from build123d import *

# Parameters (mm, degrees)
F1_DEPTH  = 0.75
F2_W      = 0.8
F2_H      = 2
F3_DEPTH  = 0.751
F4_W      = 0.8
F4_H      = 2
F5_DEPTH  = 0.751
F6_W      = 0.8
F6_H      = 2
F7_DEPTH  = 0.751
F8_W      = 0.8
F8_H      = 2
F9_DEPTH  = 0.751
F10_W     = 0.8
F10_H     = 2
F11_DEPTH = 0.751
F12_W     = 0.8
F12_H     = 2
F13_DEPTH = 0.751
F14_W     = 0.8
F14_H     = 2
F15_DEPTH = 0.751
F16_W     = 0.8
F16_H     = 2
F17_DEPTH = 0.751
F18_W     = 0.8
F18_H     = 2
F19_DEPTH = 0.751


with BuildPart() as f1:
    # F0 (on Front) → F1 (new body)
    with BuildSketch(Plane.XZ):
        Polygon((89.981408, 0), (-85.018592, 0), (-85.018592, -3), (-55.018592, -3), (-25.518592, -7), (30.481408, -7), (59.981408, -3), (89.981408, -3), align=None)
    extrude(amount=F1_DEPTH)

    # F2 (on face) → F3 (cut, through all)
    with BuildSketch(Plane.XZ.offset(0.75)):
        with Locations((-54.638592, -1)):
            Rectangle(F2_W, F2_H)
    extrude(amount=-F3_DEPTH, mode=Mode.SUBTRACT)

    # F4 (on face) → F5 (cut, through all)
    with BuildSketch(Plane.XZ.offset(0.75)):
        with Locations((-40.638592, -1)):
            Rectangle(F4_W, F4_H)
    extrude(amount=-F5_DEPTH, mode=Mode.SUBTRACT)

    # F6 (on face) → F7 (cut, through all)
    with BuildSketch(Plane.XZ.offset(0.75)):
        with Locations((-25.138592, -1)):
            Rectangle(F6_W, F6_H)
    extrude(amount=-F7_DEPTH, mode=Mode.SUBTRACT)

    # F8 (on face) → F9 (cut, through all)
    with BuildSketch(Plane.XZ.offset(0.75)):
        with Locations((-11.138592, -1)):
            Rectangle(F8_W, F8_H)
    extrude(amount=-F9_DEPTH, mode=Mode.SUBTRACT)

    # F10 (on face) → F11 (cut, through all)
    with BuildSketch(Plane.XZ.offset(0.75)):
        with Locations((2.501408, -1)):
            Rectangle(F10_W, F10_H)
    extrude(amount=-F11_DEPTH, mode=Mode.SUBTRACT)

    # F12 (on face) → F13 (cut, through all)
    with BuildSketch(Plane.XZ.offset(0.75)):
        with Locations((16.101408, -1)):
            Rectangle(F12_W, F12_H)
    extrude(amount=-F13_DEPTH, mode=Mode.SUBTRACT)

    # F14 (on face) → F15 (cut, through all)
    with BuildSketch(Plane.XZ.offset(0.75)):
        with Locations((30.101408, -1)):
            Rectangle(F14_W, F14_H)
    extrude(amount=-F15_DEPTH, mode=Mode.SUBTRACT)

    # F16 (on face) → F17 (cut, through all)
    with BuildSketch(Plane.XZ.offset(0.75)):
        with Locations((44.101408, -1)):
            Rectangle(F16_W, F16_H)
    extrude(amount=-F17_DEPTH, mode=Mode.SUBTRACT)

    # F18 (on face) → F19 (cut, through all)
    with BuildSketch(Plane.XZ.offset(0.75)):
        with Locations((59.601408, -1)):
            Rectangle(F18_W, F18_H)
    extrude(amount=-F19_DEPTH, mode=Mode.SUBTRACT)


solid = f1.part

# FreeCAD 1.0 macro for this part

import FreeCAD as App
import Part
import Sketcher

V = App.Vector
Q = App.Units.Quantity

doc = App.newDocument("Part")
params = doc.addObject("Spreadsheet::Sheet", "Params")
for row, (alias, value) in enumerate([
    ("sketch1_width", "175 mm"),
    ("sketch1_width2", "30 mm"),
    ("sketch1_width3", "56 mm"),
    ("sketch1_height", "3 mm"),
    ("pad1_length", "0.75 mm"),
    ("sketch2_height", "2 mm"),
    ("sketch2_width", "0.8 mm"),
    ("sketch3_height", "2 mm"),
    ("sketch3_width", "0.8 mm"),
    ("sketch4_height", "2 mm"),
    ("sketch4_width", "0.8 mm"),
    ("sketch5_height", "2 mm"),
    ("sketch5_width", "0.8 mm"),
    ("sketch6_height", "2 mm"),
    ("sketch6_width", "0.8 mm"),
    ("sketch7_height", "2 mm"),
    ("sketch7_width", "0.8 mm"),
    ("sketch8_height", "2 mm"),
    ("sketch8_width", "0.8 mm"),
    ("sketch9_height", "2 mm"),
    ("sketch9_width", "0.8 mm"),
    ("sketch10_height", "2 mm"),
    ("sketch10_width", "0.8 mm"),
], start=1):
    params.set(f"A{row}", alias)
    params.set(f"B{row}", "=" + value)
    params.setAlias(f"B{row}", alias)

body = doc.addObject("PartDesign::Body", "Body")

sketch1 = body.newObject("Sketcher::SketchObject", "Sketch")
sketch1.AttachmentSupport = (doc.getObject("XZ_Plane"), [""])
sketch1.MapMode = "FlatFace"
sketch1.addGeometry([
    Part.LineSegment(V(90, 0, 0), V(-85, 0, 0)),
    Part.LineSegment(V(-85, 0, 0), V(-85, -3, 0)),
    Part.LineSegment(V(-85, -3, 0), V(-55, -3, 0)),
    Part.LineSegment(V(-55, -3, 0), V(-25.5, -7, 0)),
    Part.LineSegment(V(-25.5, -7, 0), V(30.5, -7, 0)),
    Part.LineSegment(V(30.5, -7, 0), V(60, -3, 0)),
    Part.LineSegment(V(60, -3, 0), V(90, -3, 0)),
    Part.LineSegment(V(90, -3, 0), V(90, 0, 0)),
], False)
sketch1.addConstraint([
    Sketcher.Constraint("Coincident", 0, 2, 1, 1),
    Sketcher.Constraint("Coincident", 1, 2, 2, 1),
    Sketcher.Constraint("Coincident", 2, 2, 3, 1),
    Sketcher.Constraint("Coincident", 3, 2, 4, 1),
    Sketcher.Constraint("Coincident", 4, 2, 5, 1),
    Sketcher.Constraint("Coincident", 5, 2, 6, 1),
    Sketcher.Constraint("Coincident", 6, 2, 7, 1),
    Sketcher.Constraint("Coincident", 7, 2, 0, 1),
    Sketcher.Constraint("Horizontal", 0),
    Sketcher.Constraint("Vertical", 1),
    Sketcher.Constraint("Horizontal", 2),
    Sketcher.Constraint("Horizontal", 4),
    Sketcher.Constraint("Horizontal", 6),
    Sketcher.Constraint("Vertical", 7),
    Sketcher.Constraint("PointOnObject", 0, 2, -1),
    Sketcher.Constraint("Horizontal", 2, 2, 5, 2),
    Sketcher.Constraint("Equal", 2, 6),
    Sketcher.Constraint("Equal", 3, 5),
    Sketcher.Constraint("DistanceX", 0, 2, 0, 1, Q("175 mm")),
    Sketcher.Constraint("DistanceX", 2, 1, 2, 2, Q("30 mm")),
    Sketcher.Constraint("DistanceX", 4, 1, 4, 2, Q("56 mm")),
    Sketcher.Constraint("DistanceY", 1, 2, 1, 1, Q("3 mm")),
    Sketcher.Constraint("DistanceY", 3, 2, -1, 1, Q("7 mm")),
    Sketcher.Constraint("DistanceX", 0, 2, -1, 1, Q("85.018592 mm")),
])
sketch1.setExpression("Constraints[18]", "Params.sketch1_width")
sketch1.setExpression("Constraints[19]", "Params.sketch1_width2")
sketch1.setExpression("Constraints[20]", "Params.sketch1_width3")
sketch1.setExpression("Constraints[21]", "Params.sketch1_height")
pad1 = body.newObject("PartDesign::Pad", "Pad")
pad1.Profile = sketch1
pad1.setExpression("Length", "Params.pad1_length")

sketch2 = body.newObject("Sketcher::SketchObject", "Sketch001")
sketch2.AttachmentSupport = (doc.getObject("XZ_Plane"), [""])
sketch2.MapMode = "FlatFace"
sketch2.AttachmentOffset = App.Placement(V(0, 0, 0.75), App.Rotation())
sketch2.addGeometry([
    Part.LineSegment(V(-55, 0, 0), V(-55, -2, 0)),
    Part.LineSegment(V(-55, -2, 0), V(-54.2, -2, 0)),
    Part.LineSegment(V(-54.2, -2, 0), V(-54.2, 0, 0)),
    Part.LineSegment(V(-54.2, 0, 0), V(-55, 0, 0)),
], False)
sketch2.addConstraint([
    Sketcher.Constraint("Coincident", 0, 2, 1, 1),
    Sketcher.Constraint("Coincident", 1, 2, 2, 1),
    Sketcher.Constraint("Coincident", 2, 2, 3, 1),
    Sketcher.Constraint("Coincident", 3, 2, 0, 1),
    Sketcher.Constraint("Vertical", 0),
    Sketcher.Constraint("Horizontal", 1),
    Sketcher.Constraint("Vertical", 2),
    Sketcher.Constraint("Horizontal", 3),
    Sketcher.Constraint("PointOnObject", 2, 2, -1),
    Sketcher.Constraint("DistanceY", 0, 2, 0, 1, Q("2 mm")),
    Sketcher.Constraint("DistanceX", 1, 1, 1, 2, Q("0.8 mm")),
    Sketcher.Constraint("DistanceX", 1, 2, -1, 1, Q("54.238592 mm")),
])
sketch2.setExpression("Constraints[9]", "Params.sketch2_height")
sketch2.setExpression("Constraints[10]", "Params.sketch2_width")
pocket1 = body.newObject("PartDesign::Pocket", "Pocket")
pocket1.Profile = sketch2
pocket1.Type = "ThroughAll"

sketch3 = body.newObject("Sketcher::SketchObject", "Sketch002")
sketch3.AttachmentSupport = (doc.getObject("XZ_Plane"), [""])
sketch3.MapMode = "FlatFace"
sketch3.AttachmentOffset = App.Placement(V(0, 0, 0.75), App.Rotation())
sketch3.addGeometry([
    Part.LineSegment(V(-41, 0, 0), V(-41, -2, 0)),
    Part.LineSegment(V(-41, -2, 0), V(-40.2, -2, 0)),
    Part.LineSegment(V(-40.2, -2, 0), V(-40.2, 0, 0)),
    Part.LineSegment(V(-40.2, 0, 0), V(-41, 0, 0)),
], False)
sketch3.addConstraint([
    Sketcher.Constraint("Coincident", 0, 2, 1, 1),
    Sketcher.Constraint("Coincident", 1, 2, 2, 1),
    Sketcher.Constraint("Coincident", 2, 2, 3, 1),
    Sketcher.Constraint("Coincident", 3, 2, 0, 1),
    Sketcher.Constraint("Vertical", 0),
    Sketcher.Constraint("Horizontal", 1),
    Sketcher.Constraint("Vertical", 2),
    Sketcher.Constraint("Horizontal", 3),
    Sketcher.Constraint("PointOnObject", 2, 2, -1),
    Sketcher.Constraint("DistanceY", 0, 2, 0, 1, Q("2 mm")),
    Sketcher.Constraint("DistanceX", 1, 1, 1, 2, Q("0.8 mm")),
    Sketcher.Constraint("DistanceX", 1, 2, -1, 1, Q("40.238592 mm")),
])
sketch3.setExpression("Constraints[9]", "Params.sketch3_height")
sketch3.setExpression("Constraints[10]", "Params.sketch3_width")
pocket2 = body.newObject("PartDesign::Pocket", "Pocket001")
pocket2.Profile = sketch3
pocket2.Type = "ThroughAll"

sketch4 = body.newObject("Sketcher::SketchObject", "Sketch003")
sketch4.AttachmentSupport = (doc.getObject("XZ_Plane"), [""])
sketch4.MapMode = "FlatFace"
sketch4.AttachmentOffset = App.Placement(V(0, 0, 0.75), App.Rotation())
sketch4.addGeometry([
    Part.LineSegment(V(-25.5, 0, 0), V(-25.5, -2, 0)),
    Part.LineSegment(V(-25.5, -2, 0), V(-24.7, -2, 0)),
    Part.LineSegment(V(-24.7, -2, 0), V(-24.7, 0, 0)),
    Part.LineSegment(V(-24.7, 0, 0), V(-25.5, 0, 0)),
], False)
sketch4.addConstraint([
    Sketcher.Constraint("Coincident", 0, 2, 1, 1),
    Sketcher.Constraint("Coincident", 1, 2, 2, 1),
    Sketcher.Constraint("Coincident", 2, 2, 3, 1),
    Sketcher.Constraint("Coincident", 3, 2, 0, 1),
    Sketcher.Constraint("Vertical", 0),
    Sketcher.Constraint("Horizontal", 1),
    Sketcher.Constraint("Vertical", 2),
    Sketcher.Constraint("Horizontal", 3),
    Sketcher.Constraint("PointOnObject", 2, 2, -1),
    Sketcher.Constraint("DistanceY", 0, 2, 0, 1, Q("2 mm")),
    Sketcher.Constraint("DistanceX", 1, 1, 1, 2, Q("0.8 mm")),
    Sketcher.Constraint("DistanceX", 0, 2, -1, 1, Q("25.538592 mm")),
])
sketch4.setExpression("Constraints[9]", "Params.sketch4_height")
sketch4.setExpression("Constraints[10]", "Params.sketch4_width")
pocket3 = body.newObject("PartDesign::Pocket", "Pocket002")
pocket3.Profile = sketch4
pocket3.Type = "ThroughAll"

sketch5 = body.newObject("Sketcher::SketchObject", "Sketch004")
sketch5.AttachmentSupport = (doc.getObject("XZ_Plane"), [""])
sketch5.MapMode = "FlatFace"
sketch5.AttachmentOffset = App.Placement(V(0, 0, 0.75), App.Rotation())
sketch5.addGeometry([
    Part.LineSegment(V(-11.5, 0, 0), V(-11.5, -2, 0)),
    Part.LineSegment(V(-11.5, -2, 0), V(-10.7, -2, 0)),
    Part.LineSegment(V(-10.7, -2, 0), V(-10.7, 0, 0)),
    Part.LineSegment(V(-10.7, 0, 0), V(-11.5, 0, 0)),
], False)
sketch5.addConstraint([
    Sketcher.Constraint("Coincident", 0, 2, 1, 1),
    Sketcher.Constraint("Coincident", 1, 2, 2, 1),
    Sketcher.Constraint("Coincident", 2, 2, 3, 1),
    Sketcher.Constraint("Coincident", 3, 2, 0, 1),
    Sketcher.Constraint("Vertical", 0),
    Sketcher.Constraint("Horizontal", 1),
    Sketcher.Constraint("Vertical", 2),
    Sketcher.Constraint("Horizontal", 3),
    Sketcher.Constraint("PointOnObject", 2, 2, -1),
    Sketcher.Constraint("DistanceY", 0, 2, 0, 1, Q("2 mm")),
    Sketcher.Constraint("DistanceX", 1, 1, 1, 2, Q("0.8 mm")),
    Sketcher.Constraint("DistanceX", 0, 2, -1, 1, Q("11.538592 mm")),
])
sketch5.setExpression("Constraints[9]", "Params.sketch5_height")
sketch5.setExpression("Constraints[10]", "Params.sketch5_width")
pocket4 = body.newObject("PartDesign::Pocket", "Pocket003")
pocket4.Profile = sketch5
pocket4.Type = "ThroughAll"

sketch6 = body.newObject("Sketcher::SketchObject", "Sketch005")
sketch6.AttachmentSupport = (doc.getObject("XZ_Plane"), [""])
sketch6.MapMode = "FlatFace"
sketch6.AttachmentOffset = App.Placement(V(0, 0, 0.75), App.Rotation())
sketch6.addGeometry([
    Part.LineSegment(V(2.1, 0, 0), V(2.1, -2, 0)),
    Part.LineSegment(V(2.1, -2, 0), V(2.9, -2, 0)),
    Part.LineSegment(V(2.9, -2, 0), V(2.9, 0, 0)),
    Part.LineSegment(V(2.9, 0, 0), V(2.1, 0, 0)),
], False)
sketch6.addConstraint([
    Sketcher.Constraint("Coincident", 0, 2, 1, 1),
    Sketcher.Constraint("Coincident", 1, 2, 2, 1),
    Sketcher.Constraint("Coincident", 2, 2, 3, 1),
    Sketcher.Constraint("Coincident", 3, 2, 0, 1),
    Sketcher.Constraint("Vertical", 0),
    Sketcher.Constraint("Horizontal", 1),
    Sketcher.Constraint("Vertical", 2),
    Sketcher.Constraint("Horizontal", 3),
    Sketcher.Constraint("PointOnObject", 2, 2, -1),
    Sketcher.Constraint("DistanceY", 0, 2, 0, 1, Q("2 mm")),
    Sketcher.Constraint("DistanceX", 1, 1, 1, 2, Q("0.8 mm")),
    Sketcher.Constraint("DistanceX", -1, 1, 0, 2, Q("2.101408 mm")),
])
sketch6.setExpression("Constraints[9]", "Params.sketch6_height")
sketch6.setExpression("Constraints[10]", "Params.sketch6_width")
pocket5 = body.newObject("PartDesign::Pocket", "Pocket004")
pocket5.Profile = sketch6
pocket5.Type = "ThroughAll"

sketch7 = body.newObject("Sketcher::SketchObject", "Sketch006")
sketch7.AttachmentSupport = (doc.getObject("XZ_Plane"), [""])
sketch7.MapMode = "FlatFace"
sketch7.AttachmentOffset = App.Placement(V(0, 0, 0.75), App.Rotation())
sketch7.addGeometry([
    Part.LineSegment(V(15.7, 0, 0), V(15.7, -2, 0)),
    Part.LineSegment(V(15.7, -2, 0), V(16.5, -2, 0)),
    Part.LineSegment(V(16.5, -2, 0), V(16.5, 0, 0)),
    Part.LineSegment(V(16.5, 0, 0), V(15.7, 0, 0)),
], False)
sketch7.addConstraint([
    Sketcher.Constraint("Coincident", 0, 2, 1, 1),
    Sketcher.Constraint("Coincident", 1, 2, 2, 1),
    Sketcher.Constraint("Coincident", 2, 2, 3, 1),
    Sketcher.Constraint("Coincident", 3, 2, 0, 1),
    Sketcher.Constraint("Vertical", 0),
    Sketcher.Constraint("Horizontal", 1),
    Sketcher.Constraint("Vertical", 2),
    Sketcher.Constraint("Horizontal", 3),
    Sketcher.Constraint("PointOnObject", 2, 2, -1),
    Sketcher.Constraint("DistanceY", 0, 2, 0, 1, Q("2 mm")),
    Sketcher.Constraint("DistanceX", 1, 1, 1, 2, Q("0.8 mm")),
    Sketcher.Constraint("DistanceX", -1, 1, 0, 2, Q("15.701408 mm")),
])
sketch7.setExpression("Constraints[9]", "Params.sketch7_height")
sketch7.setExpression("Constraints[10]", "Params.sketch7_width")
pocket6 = body.newObject("PartDesign::Pocket", "Pocket005")
pocket6.Profile = sketch7
pocket6.Type = "ThroughAll"

sketch8 = body.newObject("Sketcher::SketchObject", "Sketch007")
sketch8.AttachmentSupport = (doc.getObject("XZ_Plane"), [""])
sketch8.MapMode = "FlatFace"
sketch8.AttachmentOffset = App.Placement(V(0, 0, 0.75), App.Rotation())
sketch8.addGeometry([
    Part.LineSegment(V(29.7, 0, 0), V(29.7, -2, 0)),
    Part.LineSegment(V(29.7, -2, 0), V(30.5, -2, 0)),
    Part.LineSegment(V(30.5, -2, 0), V(30.5, 0, 0)),
    Part.LineSegment(V(30.5, 0, 0), V(29.7, 0, 0)),
], False)
sketch8.addConstraint([
    Sketcher.Constraint("Coincident", 0, 2, 1, 1),
    Sketcher.Constraint("Coincident", 1, 2, 2, 1),
    Sketcher.Constraint("Coincident", 2, 2, 3, 1),
    Sketcher.Constraint("Coincident", 3, 2, 0, 1),
    Sketcher.Constraint("Vertical", 0),
    Sketcher.Constraint("Horizontal", 1),
    Sketcher.Constraint("Vertical", 2),
    Sketcher.Constraint("Horizontal", 3),
    Sketcher.Constraint("PointOnObject", 2, 2, -1),
    Sketcher.Constraint("DistanceY", 0, 2, 0, 1, Q("2 mm")),
    Sketcher.Constraint("DistanceX", 1, 1, 1, 2, Q("0.8 mm")),
    Sketcher.Constraint("DistanceX", -1, 1, 0, 2, Q("29.701408 mm")),
])
sketch8.setExpression("Constraints[9]", "Params.sketch8_height")
sketch8.setExpression("Constraints[10]", "Params.sketch8_width")
pocket7 = body.newObject("PartDesign::Pocket", "Pocket006")
pocket7.Profile = sketch8
pocket7.Type = "ThroughAll"

sketch9 = body.newObject("Sketcher::SketchObject", "Sketch008")
sketch9.AttachmentSupport = (doc.getObject("XZ_Plane"), [""])
sketch9.MapMode = "FlatFace"
sketch9.AttachmentOffset = App.Placement(V(0, 0, 0.75), App.Rotation())
sketch9.addGeometry([
    Part.LineSegment(V(43.7, 0, 0), V(43.7, -2, 0)),
    Part.LineSegment(V(43.7, -2, 0), V(44.5, -2, 0)),
    Part.LineSegment(V(44.5, -2, 0), V(44.5, 0, 0)),
    Part.LineSegment(V(44.5, 0, 0), V(43.7, 0, 0)),
], False)
sketch9.addConstraint([
    Sketcher.Constraint("Coincident", 0, 2, 1, 1),
    Sketcher.Constraint("Coincident", 1, 2, 2, 1),
    Sketcher.Constraint("Coincident", 2, 2, 3, 1),
    Sketcher.Constraint("Coincident", 3, 2, 0, 1),
    Sketcher.Constraint("Vertical", 0),
    Sketcher.Constraint("Horizontal", 1),
    Sketcher.Constraint("Vertical", 2),
    Sketcher.Constraint("Horizontal", 3),
    Sketcher.Constraint("PointOnObject", 2, 2, -1),
    Sketcher.Constraint("DistanceY", 0, 2, 0, 1, Q("2 mm")),
    Sketcher.Constraint("DistanceX", 1, 1, 1, 2, Q("0.8 mm")),
    Sketcher.Constraint("DistanceX", -1, 1, 0, 2, Q("43.701408 mm")),
])
sketch9.setExpression("Constraints[9]", "Params.sketch9_height")
sketch9.setExpression("Constraints[10]", "Params.sketch9_width")
pocket8 = body.newObject("PartDesign::Pocket", "Pocket007")
pocket8.Profile = sketch9
pocket8.Type = "ThroughAll"

sketch10 = body.newObject("Sketcher::SketchObject", "Sketch009")
sketch10.AttachmentSupport = (doc.getObject("XZ_Plane"), [""])
sketch10.MapMode = "FlatFace"
sketch10.AttachmentOffset = App.Placement(V(0, 0, 0.75), App.Rotation())
sketch10.addGeometry([
    Part.LineSegment(V(59.2, 0, 0), V(59.2, -2, 0)),
    Part.LineSegment(V(59.2, -2, 0), V(60, -2, 0)),
    Part.LineSegment(V(60, -2, 0), V(60, 0, 0)),
    Part.LineSegment(V(60, 0, 0), V(59.2, 0, 0)),
], False)
sketch10.addConstraint([
    Sketcher.Constraint("Coincident", 0, 2, 1, 1),
    Sketcher.Constraint("Coincident", 1, 2, 2, 1),
    Sketcher.Constraint("Coincident", 2, 2, 3, 1),
    Sketcher.Constraint("Coincident", 3, 2, 0, 1),
    Sketcher.Constraint("Vertical", 0),
    Sketcher.Constraint("Horizontal", 1),
    Sketcher.Constraint("Vertical", 2),
    Sketcher.Constraint("Horizontal", 3),
    Sketcher.Constraint("PointOnObject", 2, 2, -1),
    Sketcher.Constraint("DistanceY", 0, 2, 0, 1, Q("2 mm")),
    Sketcher.Constraint("DistanceX", 1, 1, 1, 2, Q("0.8 mm")),
    Sketcher.Constraint("DistanceX", -1, 1, 0, 2, Q("59.201408 mm")),
])
sketch10.setExpression("Constraints[9]", "Params.sketch10_height")
sketch10.setExpression("Constraints[10]", "Params.sketch10_width")
pocket9 = body.newObject("PartDesign::Pocket", "Pocket008")
pocket9.Profile = sketch10
pocket9.Type = "ThroughAll"

doc.recompute()
